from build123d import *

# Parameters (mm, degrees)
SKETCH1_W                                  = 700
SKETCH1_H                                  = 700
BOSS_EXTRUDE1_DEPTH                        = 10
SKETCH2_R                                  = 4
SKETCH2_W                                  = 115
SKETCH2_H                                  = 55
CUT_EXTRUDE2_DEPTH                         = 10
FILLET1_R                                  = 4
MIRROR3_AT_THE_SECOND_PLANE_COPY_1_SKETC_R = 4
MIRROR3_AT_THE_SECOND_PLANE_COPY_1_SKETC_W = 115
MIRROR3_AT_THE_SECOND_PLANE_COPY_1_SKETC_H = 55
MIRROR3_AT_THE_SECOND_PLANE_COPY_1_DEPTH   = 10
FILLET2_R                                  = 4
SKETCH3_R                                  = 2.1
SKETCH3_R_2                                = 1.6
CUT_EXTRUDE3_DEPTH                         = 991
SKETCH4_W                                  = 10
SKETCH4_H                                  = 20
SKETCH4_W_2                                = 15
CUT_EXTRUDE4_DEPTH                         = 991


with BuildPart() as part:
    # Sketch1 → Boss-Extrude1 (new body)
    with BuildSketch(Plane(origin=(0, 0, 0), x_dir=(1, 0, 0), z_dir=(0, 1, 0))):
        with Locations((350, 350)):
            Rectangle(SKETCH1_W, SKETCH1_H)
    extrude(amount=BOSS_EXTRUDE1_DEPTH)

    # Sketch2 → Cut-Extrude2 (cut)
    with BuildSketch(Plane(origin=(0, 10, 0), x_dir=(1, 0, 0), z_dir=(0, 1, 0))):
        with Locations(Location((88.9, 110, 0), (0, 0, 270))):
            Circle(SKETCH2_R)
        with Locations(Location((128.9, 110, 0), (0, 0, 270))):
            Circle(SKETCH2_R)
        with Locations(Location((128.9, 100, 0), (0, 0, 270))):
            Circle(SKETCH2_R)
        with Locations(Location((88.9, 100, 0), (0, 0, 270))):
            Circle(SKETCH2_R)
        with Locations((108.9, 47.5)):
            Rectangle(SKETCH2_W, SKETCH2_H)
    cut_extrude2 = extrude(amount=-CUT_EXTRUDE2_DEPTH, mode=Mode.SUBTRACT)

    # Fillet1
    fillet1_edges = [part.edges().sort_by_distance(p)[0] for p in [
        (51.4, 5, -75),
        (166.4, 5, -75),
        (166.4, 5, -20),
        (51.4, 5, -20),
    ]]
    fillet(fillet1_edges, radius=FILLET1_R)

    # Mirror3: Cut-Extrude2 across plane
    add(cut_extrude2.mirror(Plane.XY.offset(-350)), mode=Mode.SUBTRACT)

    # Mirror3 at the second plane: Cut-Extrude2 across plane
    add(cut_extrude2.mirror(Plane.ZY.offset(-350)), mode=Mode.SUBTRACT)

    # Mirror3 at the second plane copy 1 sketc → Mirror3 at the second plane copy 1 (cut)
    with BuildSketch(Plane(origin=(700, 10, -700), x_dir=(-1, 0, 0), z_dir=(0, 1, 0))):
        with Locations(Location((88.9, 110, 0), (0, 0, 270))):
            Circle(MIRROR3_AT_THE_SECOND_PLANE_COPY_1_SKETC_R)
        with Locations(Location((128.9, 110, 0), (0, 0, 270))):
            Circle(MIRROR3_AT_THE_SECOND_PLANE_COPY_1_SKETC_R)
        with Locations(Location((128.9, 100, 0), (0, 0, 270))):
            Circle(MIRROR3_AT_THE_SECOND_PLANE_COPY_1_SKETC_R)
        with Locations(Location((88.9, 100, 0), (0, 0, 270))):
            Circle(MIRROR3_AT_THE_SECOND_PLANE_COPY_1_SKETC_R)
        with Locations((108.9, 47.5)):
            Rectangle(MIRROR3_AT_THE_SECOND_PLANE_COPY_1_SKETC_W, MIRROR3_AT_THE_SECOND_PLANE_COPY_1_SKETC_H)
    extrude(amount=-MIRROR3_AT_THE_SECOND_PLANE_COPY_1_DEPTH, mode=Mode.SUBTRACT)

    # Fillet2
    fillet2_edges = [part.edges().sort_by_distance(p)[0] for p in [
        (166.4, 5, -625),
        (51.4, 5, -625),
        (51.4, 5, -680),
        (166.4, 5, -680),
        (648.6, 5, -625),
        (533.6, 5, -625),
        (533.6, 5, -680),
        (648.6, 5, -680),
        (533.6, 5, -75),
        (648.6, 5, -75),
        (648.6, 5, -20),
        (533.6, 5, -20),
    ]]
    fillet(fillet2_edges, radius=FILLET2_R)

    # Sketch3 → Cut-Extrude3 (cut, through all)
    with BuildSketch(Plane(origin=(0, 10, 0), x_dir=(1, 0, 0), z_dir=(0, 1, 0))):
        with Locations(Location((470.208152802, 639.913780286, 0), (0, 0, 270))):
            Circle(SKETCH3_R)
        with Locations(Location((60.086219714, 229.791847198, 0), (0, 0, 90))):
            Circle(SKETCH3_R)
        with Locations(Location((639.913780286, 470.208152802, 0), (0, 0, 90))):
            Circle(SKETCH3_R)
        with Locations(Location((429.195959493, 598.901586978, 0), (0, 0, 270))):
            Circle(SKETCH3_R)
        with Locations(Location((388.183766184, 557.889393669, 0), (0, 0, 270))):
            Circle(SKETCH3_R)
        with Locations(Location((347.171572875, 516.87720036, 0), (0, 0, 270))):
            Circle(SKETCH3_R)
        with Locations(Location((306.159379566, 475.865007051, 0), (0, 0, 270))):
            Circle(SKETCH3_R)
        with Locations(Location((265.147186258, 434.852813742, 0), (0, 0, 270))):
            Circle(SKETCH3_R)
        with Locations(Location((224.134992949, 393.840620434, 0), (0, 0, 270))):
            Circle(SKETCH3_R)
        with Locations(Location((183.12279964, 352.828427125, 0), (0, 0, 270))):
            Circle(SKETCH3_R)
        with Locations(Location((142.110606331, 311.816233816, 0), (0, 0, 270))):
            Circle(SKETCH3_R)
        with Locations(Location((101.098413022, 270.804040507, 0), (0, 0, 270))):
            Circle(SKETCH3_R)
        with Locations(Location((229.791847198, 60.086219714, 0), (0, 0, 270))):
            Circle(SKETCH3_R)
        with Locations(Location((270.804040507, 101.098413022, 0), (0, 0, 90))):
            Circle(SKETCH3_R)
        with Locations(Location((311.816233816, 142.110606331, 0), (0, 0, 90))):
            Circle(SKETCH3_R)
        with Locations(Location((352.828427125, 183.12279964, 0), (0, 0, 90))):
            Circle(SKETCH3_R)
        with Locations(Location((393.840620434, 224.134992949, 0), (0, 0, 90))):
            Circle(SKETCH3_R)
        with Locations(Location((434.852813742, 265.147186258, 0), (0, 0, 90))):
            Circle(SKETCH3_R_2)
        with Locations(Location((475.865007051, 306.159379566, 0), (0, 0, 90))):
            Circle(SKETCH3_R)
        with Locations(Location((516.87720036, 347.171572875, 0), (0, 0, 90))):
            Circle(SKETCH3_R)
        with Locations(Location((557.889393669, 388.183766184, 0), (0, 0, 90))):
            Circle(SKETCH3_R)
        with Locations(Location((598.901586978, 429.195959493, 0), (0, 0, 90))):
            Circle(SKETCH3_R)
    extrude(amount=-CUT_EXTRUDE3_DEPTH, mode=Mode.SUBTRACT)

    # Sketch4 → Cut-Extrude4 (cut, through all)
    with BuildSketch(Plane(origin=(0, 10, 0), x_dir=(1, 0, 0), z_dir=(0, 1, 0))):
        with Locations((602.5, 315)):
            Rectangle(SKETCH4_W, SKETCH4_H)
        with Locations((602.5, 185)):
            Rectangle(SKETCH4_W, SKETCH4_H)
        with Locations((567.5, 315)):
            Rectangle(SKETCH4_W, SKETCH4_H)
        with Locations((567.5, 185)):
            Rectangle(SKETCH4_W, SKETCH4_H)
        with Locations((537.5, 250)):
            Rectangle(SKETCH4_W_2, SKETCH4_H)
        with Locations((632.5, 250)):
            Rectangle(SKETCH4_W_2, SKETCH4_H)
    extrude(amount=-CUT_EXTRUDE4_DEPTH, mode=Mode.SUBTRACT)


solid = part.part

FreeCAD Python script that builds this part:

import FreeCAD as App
import Part
import Sketcher


def edges_at(feature, points):
    """Names of the edges that pass closest to the given points."""
    edges = feature.Shape.Edges
    near = lambda p: min(range(len(edges)), key=lambda i: edges[i].distToShape(Part.Vertex(*p))[0])
    return sorted({f"Edge{near(p) + 1}" for p in points})

doc = App.newDocument("Part")
body = doc.addObject("PartDesign::Body", "Body")

# Sketch on XZ plane
sketch1 = doc.addObject("Sketcher::SketchObject", "Sketch")
body.addObject(sketch1)
sketch1.AttachmentSupport = (doc.XZ_Plane, [""])
sketch1.MapMode = "FlatFace"
sketch1.addGeometry([
    Part.LineSegment(App.Vector(0, -700, 0), App.Vector(0, 0, 0)),
    Part.LineSegment(App.Vector(0, 0, 0), App.Vector(700, 0, 0)),
    Part.LineSegment(App.Vector(700, 0, 0), App.Vector(700, -700, 0)),
    Part.LineSegment(App.Vector(700, -700, 0), App.Vector(0, -700, 0)),
], False)
sketch1.addConstraint([
    Sketcher.Constraint("Coincident", 0, 2, 1, 1),
    Sketcher.Constraint("Coincident", 1, 2, 2, 1),
    Sketcher.Constraint("Coincident", 2, 2, 3, 1),
    Sketcher.Constraint("Coincident", 3, 2, 0, 1),
    Sketcher.Constraint("Vertical", 0),
    Sketcher.Constraint("Horizontal", 1),
    Sketcher.Constraint("Vertical", 2),
    Sketcher.Constraint("Horizontal", 3),
    Sketcher.Constraint("Coincident", 0, 2, -1, 1),
    Sketcher.Constraint("Equal", 3, 0),
    Sketcher.Constraint("DistanceX", 1, 1, 1, 2, 700.0),
])
pad1 = doc.addObject("PartDesign::Pad", "Pad")
body.addObject(pad1)
pad1.Profile = sketch1
pad1.Length = 10
pad1.Reversed = True

# Sketch on XZ plane
sketch2 = doc.addObject("Sketcher::SketchObject", "Sketch001")
body.addObject(sketch2)
sketch2.AttachmentSupport = (doc.XZ_Plane, [""])
sketch2.MapMode = "FlatFace"
sketch2.AttachmentOffset = App.Placement(App.Vector(0, 0, -10), App.Rotation())
sketch2.addGeometry([
    Part.Circle(App.Vector(88.9, -110, 0), App.Vector(0, 0, 1), 4),  # 0
    Part.Circle(App.Vector(128.9, -110, 0), App.Vector(0, 0, 1), 4),  # 1
    Part.Circle(App.Vector(128.9, -100, 0), App.Vector(0, 0, 1), 4),  # 2
    Part.Circle(App.Vector(88.9, -100, 0), App.Vector(0, 0, 1), 4),  # 3
    Part.LineSegment(App.Vector(51.4, -75, 0), App.Vector(51.4, -20, 0)),  # 4
    Part.LineSegment(App.Vector(51.4, -20, 0), App.Vector(166.4, -20, 0)),  # 5
    Part.LineSegment(App.Vector(166.4, -20, 0), App.Vector(166.4, -75, 0)),  # 6
    Part.LineSegment(App.Vector(166.4, -75, 0), App.Vector(51.4, -75, 0)),  # 7
], False)
sketch2.addConstraint([
    Sketcher.Constraint("Coincident", 4, 2, 5, 1),
    Sketcher.Constraint("Coincident", 5, 2, 6, 1),
    Sketcher.Constraint("Coincident", 6, 2, 7, 1),
    Sketcher.Constraint("Coincident", 7, 2, 4, 1),
    Sketcher.Constraint("Vertical", 4),
    Sketcher.Constraint("Horizontal", 5),
    Sketcher.Constraint("Vertical", 6),
    Sketcher.Constraint("Horizontal", 7),
    Sketcher.Constraint("Equal", 0, 1),
    Sketcher.Constraint("Equal", 1, 2),
    Sketcher.Constraint("Equal", 2, 3),
    Sketcher.Constraint("Horizontal", 0, 3, 1, 3),
    Sketcher.Constraint("Horizontal", 2, 3, 3, 3),
    Sketcher.Constraint("Vertical", 1, 3, 2, 3),
    Sketcher.Constraint("Vertical", 0, 3, 3, 3),
    Sketcher.Constraint("Diameter", 0, 8.0),
    Sketcher.Constraint("DistanceX", 5, 1, 5, 2, 115.0),
    Sketcher.Constraint("DistanceY", 4, 1, 4, 2, 55.0),
    Sketcher.Constraint("DistanceY", 0, 3, -1, 1, 110.0),
    Sketcher.Constraint("DistanceY", 2, 3, -1, 1, 100.0),
    Sketcher.Constraint("DistanceY", 4, 2, -1, 1, 20.0),
    Sketcher.Constraint("DistanceX", 0, 3, 1, 3, 40.0),
    Sketcher.Constraint("DistanceX", -1, 1, 0, 3, 88.9),
    Sketcher.Constraint("DistanceX", -1, 1, 4, 2, 51.4),
])
pocket1 = doc.addObject("PartDesign::Pocket", "Pocket")
body.addObject(pocket1)
pocket1.Profile = sketch2
pocket1.Length = 10
pocket1.Reversed = True
doc.recompute()

fillet = doc.addObject("PartDesign::Fillet", "Fillet")
body.addObject(fillet)
fillet.Base = (pocket1, edges_at(pocket1, [
    (51.4, 5, -75),
    (166.4, 5, -75),
    (166.4, 5, -20),
    (51.4, 5, -20),
]))
fillet.Radius = 4
doc.recompute()

datumplane = doc.addObject("PartDesign::Plane", "DatumPlane")
body.addObject(datumplane)
datumplane.AttachmentSupport = (doc.XY_Plane, [""])
datumplane.MapMode = "FlatFace"
datumplane.AttachmentOffset = App.Placement(App.Vector(0, 0, -350), App.Rotation())
mirrored = doc.addObject("PartDesign::Mirrored", "Mirrored")
body.addObject(mirrored)
mirrored.Originals = [pocket1]
mirrored.MirrorPlane = (datumplane, [""])
body.Tip = mirrored
doc.recompute()

datumplane2 = doc.addObject("PartDesign::Plane", "DatumPlane001")
body.addObject(datumplane2)
datumplane2.AttachmentSupport = (doc.YZ_Plane, [""])
datumplane2.MapMode = "FlatFace"
datumplane2.AttachmentOffset = App.Placement(App.Vector(0, 0, 350), App.Rotation())
mirrored2 = doc.addObject("PartDesign::Mirrored", "Mirrored001")
body.addObject(mirrored2)
mirrored2.Originals = [pocket1]
mirrored2.MirrorPlane = (datumplane2, [""])
body.Tip = mirrored2

# Sketch on XZ plane
sketch3 = doc.addObject("Sketcher::SketchObject", "Sketch002")
body.addObject(sketch3)
sketch3.AttachmentSupport = (doc.XZ_Plane, [""])
sketch3.MapMode = "FlatFace"
sketch3.AttachmentOffset = App.Placement(App.Vector(0, 0, -10), App.Rotation())
sketch3.addGeometry([
    Part.Circle(App.Vector(611.1, -590, 0), App.Vector(0, 0, 1), 4),  # 0
    Part.Circle(App.Vector(571.1, -590, 0), App.Vector(0, 0, 1), 4),  # 1
    Part.Circle(App.Vector(571.1, -600, 0), App.Vector(0, 0, 1), 4),  # 2
    Part.Circle(App.Vector(611.1, -600, 0), App.Vector(0, 0, 1), 4),  # 3
    Part.LineSegment(App.Vector(648.6, -625, 0), App.Vector(648.6, -680, 0)),  # 4
    Part.LineSegment(App.Vector(648.6, -680, 0), App.Vector(533.6, -680, 0)),  # 5
    Part.LineSegment(App.Vector(533.6, -680, 0), App.Vector(533.6, -625, 0)),  # 6
    Part.LineSegment(App.Vector(533.6, -625, 0), App.Vector(648.6, -625, 0)),  # 7
], False)
sketch3.addConstraint([
    Sketcher.Constraint("Coincident", 4, 2, 5, 1),
    Sketcher.Constraint("Coincident", 5, 2, 6, 1),
    Sketcher.Constraint("Coincident", 6, 2, 7, 1),
    Sketcher.Constraint("Coincident", 7, 2, 4, 1),
    Sketcher.Constraint("Vertical", 4),
    Sketcher.Constraint("Horizontal", 5),
    Sketcher.Constraint("Vertical", 6),
    Sketcher.Constraint("Horizontal", 7),
    Sketcher.Constraint("Equal", 0, 1),
    Sketcher.Constraint("Equal", 1, 2),
    Sketcher.Constraint("Equal", 2, 3),
    Sketcher.Constraint("Horizontal", 0, 3, 1, 3),
    Sketcher.Constraint("Horizontal", 2, 3, 3, 3),
    Sketcher.Constraint("Vertical", 1, 3, 2, 3),
    Sketcher.Constraint("Vertical", 0, 3, 3, 3),
    Sketcher.Constraint("Diameter", 0, 8.0),
    Sketcher.Constraint("DistanceX", 5, 2, 5, 1, 115.0),
    Sketcher.Constraint("DistanceY", 4, 2, 4, 1, 55.0),
    Sketcher.Constraint("DistanceY", 0, 3, -1, 1, 590.0),
    Sketcher.Constraint("DistanceY", 2, 3, -1, 1, 600.0),
    Sketcher.Constraint("DistanceY", 4, 2, -1, 1, 680.0),
    Sketcher.Constraint("DistanceX", 1, 3, 0, 3, 40.0),
    Sketcher.Constraint("DistanceX", -1, 1, 0, 3, 611.1),
    Sketcher.Constraint("DistanceX", -1, 1, 4, 2, 648.6),
])
pocket2 = doc.addObject("PartDesign::Pocket", "Pocket001")
body.addObject(pocket2)
pocket2.Profile = sketch3
pocket2.Length = 10
pocket2.Reversed = True
doc.recompute()

fillet2 = doc.addObject("PartDesign::Fillet", "Fillet001")
body.addObject(fillet2)
fillet2.Base = (pocket2, edges_at(pocket2, [
    (166.4, 5, -625),
    (51.4, 5, -625),
    (51.4, 5, -680),
    (166.4, 5, -680),
    (648.6, 5, -625),
    (533.6, 5, -625),
    (533.6, 5, -680),
    (648.6, 5, -680),
    (533.6, 5, -75),
    (648.6, 5, -75),
    (648.6, 5, -20),
    (533.6, 5, -20),
]))
fillet2.Radius = 4

# Sketch on XZ plane
sketch4 = doc.addObject("Sketcher::SketchObject", "Sketch003")
body.addObject(sketch4)
sketch4.AttachmentSupport = (doc.XZ_Plane, [""])
sketch4.MapMode = "FlatFace"
sketch4.AttachmentOffset = App.Placement(App.Vector(0, 0, -10), App.Rotation())
sketch4.addGeometry([
    Part.Circle(App.Vector(470.2, -639.9, 0), App.Vector(0, 0, 1), 2.1),  # 0
    Part.Circle(App.Vector(60.1, -229.8, 0), App.Vector(0, 0, 1), 2.1),  # 1
    Part.Circle(App.Vector(639.9, -470.2, 0), App.Vector(0, 0, 1), 2.1),  # 2
    Part.Circle(App.Vector(429.2, -598.9, 0), App.Vector(0, 0, 1), 2.1),  # 3
    Part.Circle(App.Vector(388.2, -557.9, 0), App.Vector(0, 0, 1), 2.1),  # 4
    Part.Circle(App.Vector(347.2, -516.9, 0), App.Vector(0, 0, 1), 2.1),  # 5
    Part.Circle(App.Vector(306.2, -475.9, 0), App.Vector(0, 0, 1), 2.1),  # 6
    Part.Circle(App.Vector(265.1, -434.9, 0), App.Vector(0, 0, 1), 2.1),  # 7
    Part.Circle(App.Vector(224.1, -393.8, 0), App.Vector(0, 0, 1), 2.1),  # 8
    Part.Circle(App.Vector(183.1, -352.8, 0), App.Vector(0, 0, 1), 2.1),  # 9
    Part.Circle(App.Vector(142.1, -311.8, 0), App.Vector(0, 0, 1), 2.1),  # 10
    Part.Circle(App.Vector(101.1, -270.8, 0), App.Vector(0, 0, 1), 2.1),  # 11
    Part.Circle(App.Vector(229.8, -60.1, 0), App.Vector(0, 0, 1), 2.1),  # 12
    Part.Circle(App.Vector(270.8, -101.1, 0), App.Vector(0, 0, 1), 2.1),  # 13
    Part.Circle(App.Vector(311.8, -142.1, 0), App.Vector(0, 0, 1), 2.1),  # 14
    Part.Circle(App.Vector(352.8, -183.1, 0), App.Vector(0, 0, 1), 2.1),  # 15
    Part.Circle(App.Vector(393.8, -224.1, 0), App.Vector(0, 0, 1), 2.1),  # 16
    Part.Circle(App.Vector(434.9, -265.1, 0), App.Vector(0, 0, 1), 1.6),  # 17
    Part.Circle(App.Vector(475.9, -306.2, 0), App.Vector(0, 0, 1), 2.1),  # 18
    Part.Circle(App.Vector(516.9, -347.2, 0), App.Vector(0, 0, 1), 2.1),  # 19
    Part.Circle(App.Vector(557.9, -388.2, 0), App.Vector(0, 0, 1), 2.1),  # 20
    Part.Circle(App.Vector(598.9, -429.2, 0), App.Vector(0, 0, 1), 2.1),  # 21
], False)
sketch4.addConstraint([
    Sketcher.Constraint("Equal", 0, 1),
    Sketcher.Constraint("Equal", 1, 2),
    Sketcher.Constraint("Equal", 2, 3),
    Sketcher.Constraint("Equal", 3, 4),
    Sketcher.Constraint("Equal", 4, 5),
    Sketcher.Constraint("Equal", 5, 6),
    Sketcher.Constraint("Equal", 6, 7),
    Sketcher.Constraint("Equal", 7, 8),
    Sketcher.Constraint("Equal", 8, 9),
    Sketcher.Constraint("Equal", 9, 10),
    Sketcher.Constraint("Equal", 10, 11),
    Sketcher.Constraint("Equal", 11, 12),
    Sketcher.Constraint("Equal", 12, 13),
    Sketcher.Constraint("Equal", 13, 14),
    Sketcher.Constraint("Equal", 14, 15),
    Sketcher.Constraint("Equal", 15, 16),
    Sketcher.Constraint("Equal", 16, 18),
    Sketcher.Constraint("Equal", 18, 19),
    Sketcher.Constraint("Equal", 19, 20),
    Sketcher.Constraint("Equal", 20, 21),
    Sketcher.Constraint("Diameter", 0, 4.2),
    Sketcher.Constraint("Diameter", 17, 3.2),
    Sketcher.Constraint("DistanceY", 5, 3, -1, 1, 516.8772),
    Sketcher.Constraint("DistanceX", -1, 1, 9, 3, 183.1228),
    Sketcher.Constraint("DistanceY", 15, 3, -1, 1, 183.1228),
    Sketcher.Constraint("DistanceX", -1, 1, 19, 3, 516.8772),
    Sketcher.Constraint("DistanceX", 6, 3, 2, 3, 333.754401),
    Sketcher.Constraint("DistanceY", 8, 3, 12, 3, 333.754401),
    Sketcher.Constraint("DistanceY", 0, 3, -1, 1, 639.91378),
    Sketcher.Constraint("DistanceX", -1, 1, 1, 3, 60.08622),
    Sketcher.Constraint("DistanceX", -1, 1, 2, 3, 639.91378),
    Sketcher.Constraint("DistanceX", -1, 1, 3, 3, 429.195959),
    Sketcher.Constraint("DistanceY", 8, 3, -1, 1, 393.84062),
    Sketcher.Constraint("DistanceY", 11, 3, -1, 1, 270.804041),
    Sketcher.Constraint("DistanceX", -1, 1, 13, 3, 270.804041),
    Sketcher.Constraint("DistanceX", -1, 1, 16, 3, 393.84062),
    Sketcher.Constraint("DistanceY", 18, 3, -1, 1, 306.15938),
    Sketcher.Constraint("DistanceY", 21, 3, -1, 1, 429.195959),
    Sketcher.Constraint("DistanceY", 3, 3, 1, 3, 369.10974),
    Sketcher.Constraint("DistanceY", 4, 3, 2, 3, 87.681241),
    Sketcher.Constraint("DistanceX", 5, 3, 0, 3, 123.03658),
    Sketcher.Constraint("DistanceY", 3, 3, 6, 3, 123.03658),
    Sketcher.Constraint("DistanceX", 7, 3, 4, 3, 123.03658),
    Sketcher.Constraint("DistanceY", 4, 3, 7, 3, 123.03658),
    Sketcher.Constraint("DistanceX", 8, 3, 5, 3, 123.03658),
    Sketcher.Constraint("DistanceY", 6, 3, 9, 3, 123.03658),
    Sketcher.Constraint("DistanceX", 10, 3, 7, 3, 123.03658),
    Sketcher.Constraint("DistanceY", 7, 3, 10, 3, 123.03658),
    Sketcher.Constraint("DistanceX", 11, 3, 8, 3, 123.03658),
    Sketcher.Constraint("DistanceX", 10, 3, 12, 3, 87.681241),
    Sketcher.Constraint("DistanceY", 10, 3, 13, 3, 210.717821),
    Sketcher.Constraint("DistanceY", 9, 3, 14, 3, 210.717821),
    Sketcher.Constraint("DistanceX", 11, 3, 14, 3, 210.717821),
    Sketcher.Constraint("DistanceX", 12, 3, 15, 3, 123.03658),
    Sketcher.Constraint("DistanceY", 16, 3, 13, 3, 123.03658),
    Sketcher.Constraint("DistanceX", 14, 3, 17, 3, 123.03658),
    Sketcher.Constraint("DistanceY", 17, 3, 14, 3, 123.03658),
    Sketcher.Constraint("DistanceX", 15, 3, 18, 3, 123.03658),
    Sketcher.Constraint("DistanceY", 19, 3, 16, 3, 123.03658),
    Sketcher.Constraint("DistanceX", 17, 3, 20, 3, 123.03658),
    Sketcher.Constraint("DistanceY", 20, 3, 17, 3, 123.03658),
    Sketcher.Constraint("DistanceX", 18, 3, 21, 3, 123.03658),
    Sketcher.Constraint("DistanceX", -1, 1, 0, 3, 470.208153),
    Sketcher.Constraint("DistanceY", 1, 3, -1, 1, 229.791847),
    Sketcher.Constraint("DistanceY", 2, 3, -1, 1, 470.208153),
    Sketcher.Constraint("DistanceX", -1, 1, 4, 3, 388.183766),
])
pocket3 = doc.addObject("PartDesign::Pocket", "Pocket002")
body.addObject(pocket3)
pocket3.Profile = sketch4
pocket3.Type = "ThroughAll"
pocket3.Reversed = True

# Sketch on XZ plane
sketch5 = doc.addObject("Sketcher::SketchObject", "Sketch004")
body.addObject(sketch5)
sketch5.AttachmentSupport = (doc.XZ_Plane, [""])
sketch5.MapMode = "FlatFace"
sketch5.AttachmentOffset = App.Placement(App.Vector(0, 0, -10), App.Rotation())
sketch5.addGeometry([
    Part.LineSegment(App.Vector(598, -325, 0), App.Vector(598, -305, 0)),  # 0
    Part.LineSegment(App.Vector(598, -305, 0), App.Vector(608, -305, 0)),  # 1
    Part.LineSegment(App.Vector(608, -305, 0), App.Vector(608, -325, 0)),  # 2
    Part.LineSegment(App.Vector(608, -325, 0), App.Vector(598, -325, 0)),  # 3
    Part.LineSegment(App.Vector(598, -195, 0), App.Vector(598, -175, 0)),  # 4
    Part.LineSegment(App.Vector(598, -175, 0), App.Vector(608, -175, 0)),  # 5
    Part.LineSegment(App.Vector(608, -175, 0), App.Vector(608, -195, 0)),  # 6
    Part.LineSegment(App.Vector(608, -195, 0), App.Vector(598, -195, 0)),  # 7
    Part.LineSegment(App.Vector(562, -325, 0), App.Vector(562, -305, 0)),  # 8
    Part.LineSegment(App.Vector(562, -305, 0), App.Vector(572, -305, 0)),  # 9
    Part.LineSegment(App.Vector(572, -305, 0), App.Vector(572, -325, 0)),  # 10
    Part.LineSegment(App.Vector(572, -325, 0), App.Vector(562, -325, 0)),  # 11
    Part.LineSegment(App.Vector(562, -195, 0), App.Vector(562, -175, 0)),  # 12
    Part.LineSegment(App.Vector(562, -175, 0), App.Vector(572, -175, 0)),  # 13
    Part.LineSegment(App.Vector(572, -175, 0), App.Vector(572, -195, 0)),  # 14
    Part.LineSegment(App.Vector(572, -195, 0), App.Vector(562, -195, 0)),  # 15
    Part.LineSegment(App.Vector(530, -260, 0), App.Vector(530, -240, 0)),  # 16
    Part.LineSegment(App.Vector(530, -240, 0), App.Vector(545, -240, 0)),  # 17
    Part.LineSegment(App.Vector(545, -240, 0), App.Vector(545, -260, 0)),  # 18
    Part.LineSegment(App.Vector(545, -260, 0), App.Vector(530, -260, 0)),  # 19
    Part.LineSegment(App.Vector(625, -260, 0), App.Vector(625, -240, 0)),  # 20
    Part.LineSegment(App.Vector(625, -240, 0), App.Vector(640, -240, 0)),  # 21
    Part.LineSegment(App.Vector(640, -240, 0), App.Vector(640, -260, 0)),  # 22
    Part.LineSegment(App.Vector(640, -260, 0), App.Vector(625, -260, 0)),  # 23
], False)
sketch5.addConstraint([
    Sketcher.Constraint("Coincident", 0, 2, 1, 1),
    Sketcher.Constraint("Coincident", 1, 2, 2, 1),
    Sketcher.Constraint("Coincident", 2, 2, 3, 1),
    Sketcher.Constraint("Coincident", 3, 2, 0, 1),
    Sketcher.Constraint("Coincident", 4, 2, 5, 1),
    Sketcher.Constraint("Coincident", 5, 2, 6, 1),
    Sketcher.Constraint("Coincident", 6, 2, 7, 1),
    Sketcher.Constraint("Coincident", 7, 2, 4, 1),
    Sketcher.Constraint("Coincident", 8, 2, 9, 1),
    Sketcher.Constraint("Coincident", 9, 2, 10, 1),
    Sketcher.Constraint("Coincident", 10, 2, 11, 1),
    Sketcher.Constraint("Coincident", 11, 2, 8, 1),
    Sketcher.Constraint("Coincident", 12, 2, 13, 1),
    Sketcher.Constraint("Coincident", 13, 2, 14, 1),
    Sketcher.Constraint("Coincident", 14, 2, 15, 1),
    Sketcher.Constraint("Coincident", 15, 2, 12, 1),
    Sketcher.Constraint("Coincident", 16, 2, 17, 1),
    Sketcher.Constraint("Coincident", 17, 2, 18, 1),
    Sketcher.Constraint("Coincident", 18, 2, 19, 1),
    Sketcher.Constraint("Coincident", 19, 2, 16, 1),
    Sketcher.Constraint("Coincident", 20, 2, 21, 1),
    Sketcher.Constraint("Coincident", 21, 2, 22, 1),
    Sketcher.Constraint("Coincident", 22, 2, 23, 1),
    Sketcher.Constraint("Coincident", 23, 2, 20, 1),
    Sketcher.Constraint("Vertical", 0),
    Sketcher.Constraint("Horizontal", 1),
    Sketcher.Constraint("Vertical", 2),
    Sketcher.Constraint("Horizontal", 3),
    Sketcher.Constraint("Vertical", 4),
    Sketcher.Constraint("Horizontal", 5),
    Sketcher.Constraint("Vertical", 6),
    Sketcher.Constraint("Horizontal", 7),
    Sketcher.Constraint("Vertical", 8),
    Sketcher.Constraint("Horizontal", 9),
    Sketcher.Constraint("Vertical", 10),
    Sketcher.Constraint("Horizontal", 11),
    Sketcher.Constraint("Vertical", 12),
    Sketcher.Constraint("Horizontal", 13),
    Sketcher.Constraint("Vertical", 14),
    Sketcher.Constraint("Horizontal", 15),
    Sketcher.Constraint("Vertical", 16),
    Sketcher.Constraint("Horizontal", 17),
    Sketcher.Constraint("Vertical", 18),
    Sketcher.Constraint("Horizontal", 19),
    Sketcher.Constraint("Vertical", 20),
    Sketcher.Constraint("Horizontal", 21),
    Sketcher.Constraint("Vertical", 22),
    Sketcher.Constraint("Horizontal", 23),
    Sketcher.Constraint("Horizontal", 1, 2, 8, 2),
    Sketcher.Constraint("Horizontal", 3, 2, 10, 2),
    Sketcher.Constraint("Horizontal", 5, 2, 12, 2),
    Sketcher.Constraint("Horizontal", 7, 2, 14, 2),
    Sketcher.Constraint("Horizontal", 17, 2, 20, 2),
    Sketcher.Constraint("Horizontal", 19, 2, 22, 2),
    Sketcher.Constraint("Vertical", 3, 2, 4, 2),
    Sketcher.Constraint("Vertical", 2, 2, 5, 2),
    Sketcher.Constraint("Vertical", 11, 2, 12, 2),
    Sketcher.Constraint("Vertical", 10, 2, 13, 2),
    Sketcher.Constraint("Equal", 7, 9),
    Sketcher.Constraint("Equal", 19, 21),
    Sketcher.Constraint("Equal", 2, 4),
    Sketcher.Constraint("Equal", 14, 16),
    Sketcher.Constraint("DistanceX", 1, 1, 1, 2, 10.0),
    Sketcher.Constraint("DistanceX", 17, 1, 17, 2, 15.0),
    Sketcher.Constraint("DistanceY", 0, 1, 0, 2, 20.0),
    Sketcher.Constraint("DistanceY", 0, 2, -1, 1, 305.0),
    Sketcher.Constraint("DistanceY", 4, 2, -1, 1, 175.0),
    Sketcher.Constraint("DistanceX", -1, 1, 16, 2, 530.0),
    Sketcher.Constraint("DistanceY", 16, 2, -1, 1, 240.0),
    Sketcher.Constraint("DistanceX", -1, 1, 20, 2, 625.0),
    Sketcher.Constraint("DistanceX", 8, 2, 0, 2, 35.0),
    Sketcher.Constraint("DistanceX", -1, 1, 0, 2, 597.5),
])
pocket4 = doc.addObject("PartDesign::Pocket", "Pocket003")
body.addObject(pocket4)
pocket4.Profile = sketch5
pocket4.Type = "ThroughAll"
pocket4.Reversed = True

doc.recompute()
